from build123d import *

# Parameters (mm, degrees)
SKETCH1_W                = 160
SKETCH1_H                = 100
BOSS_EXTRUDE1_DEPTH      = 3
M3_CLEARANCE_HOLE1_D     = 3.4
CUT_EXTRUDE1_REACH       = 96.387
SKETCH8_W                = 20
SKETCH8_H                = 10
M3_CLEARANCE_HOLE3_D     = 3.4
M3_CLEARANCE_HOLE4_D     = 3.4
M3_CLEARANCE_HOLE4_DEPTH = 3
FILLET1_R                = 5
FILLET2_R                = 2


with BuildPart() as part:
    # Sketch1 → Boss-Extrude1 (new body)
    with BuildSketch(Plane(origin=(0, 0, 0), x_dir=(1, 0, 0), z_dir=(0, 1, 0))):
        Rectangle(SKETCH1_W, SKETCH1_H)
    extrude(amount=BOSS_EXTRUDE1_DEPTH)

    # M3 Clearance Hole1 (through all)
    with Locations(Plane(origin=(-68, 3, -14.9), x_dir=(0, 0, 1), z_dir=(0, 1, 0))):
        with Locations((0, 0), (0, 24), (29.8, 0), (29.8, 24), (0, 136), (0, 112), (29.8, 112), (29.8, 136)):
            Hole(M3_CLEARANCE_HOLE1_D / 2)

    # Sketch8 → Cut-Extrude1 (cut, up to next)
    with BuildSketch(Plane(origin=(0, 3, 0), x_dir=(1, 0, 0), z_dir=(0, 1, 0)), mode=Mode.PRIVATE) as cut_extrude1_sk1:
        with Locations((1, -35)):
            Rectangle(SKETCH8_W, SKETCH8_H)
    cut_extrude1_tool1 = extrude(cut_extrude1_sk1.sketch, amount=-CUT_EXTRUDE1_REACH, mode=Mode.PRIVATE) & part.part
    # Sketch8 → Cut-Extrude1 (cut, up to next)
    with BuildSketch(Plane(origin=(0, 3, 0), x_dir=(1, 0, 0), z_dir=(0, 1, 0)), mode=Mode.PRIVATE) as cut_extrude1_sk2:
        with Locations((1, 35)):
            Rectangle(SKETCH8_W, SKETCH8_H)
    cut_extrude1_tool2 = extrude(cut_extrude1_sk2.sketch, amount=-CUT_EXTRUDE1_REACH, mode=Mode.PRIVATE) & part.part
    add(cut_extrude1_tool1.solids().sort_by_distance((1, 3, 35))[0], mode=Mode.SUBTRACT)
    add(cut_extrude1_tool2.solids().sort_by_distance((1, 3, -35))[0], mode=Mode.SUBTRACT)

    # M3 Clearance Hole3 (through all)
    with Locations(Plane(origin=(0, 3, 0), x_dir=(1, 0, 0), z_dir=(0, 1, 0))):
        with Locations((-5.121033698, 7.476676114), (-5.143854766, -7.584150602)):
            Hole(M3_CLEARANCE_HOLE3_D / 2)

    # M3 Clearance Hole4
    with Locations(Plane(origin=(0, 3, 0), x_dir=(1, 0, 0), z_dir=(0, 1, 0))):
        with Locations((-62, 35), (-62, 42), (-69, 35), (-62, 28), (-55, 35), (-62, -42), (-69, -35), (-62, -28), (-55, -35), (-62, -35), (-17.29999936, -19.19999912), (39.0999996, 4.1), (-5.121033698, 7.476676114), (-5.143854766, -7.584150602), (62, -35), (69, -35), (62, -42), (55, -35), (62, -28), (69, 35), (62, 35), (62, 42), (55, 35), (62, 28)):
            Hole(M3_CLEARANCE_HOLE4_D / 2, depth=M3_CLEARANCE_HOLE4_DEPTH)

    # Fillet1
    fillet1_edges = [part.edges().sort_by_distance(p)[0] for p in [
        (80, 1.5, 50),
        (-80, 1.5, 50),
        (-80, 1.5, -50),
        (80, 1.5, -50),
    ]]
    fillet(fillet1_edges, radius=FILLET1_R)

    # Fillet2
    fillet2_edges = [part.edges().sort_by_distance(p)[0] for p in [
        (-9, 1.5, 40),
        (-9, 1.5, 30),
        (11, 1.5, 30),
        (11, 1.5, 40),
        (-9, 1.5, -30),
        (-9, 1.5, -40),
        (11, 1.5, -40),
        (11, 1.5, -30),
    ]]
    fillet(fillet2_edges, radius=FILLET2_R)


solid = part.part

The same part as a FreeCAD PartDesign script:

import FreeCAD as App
import Part
import Sketcher
Q = App.Units.Quantity


def edges_at(feature, points):
    """Names of the edges that pass closest to the given points."""
    edges = feature.Shape.Edges
    near = lambda p: min(range(len(edges)), key=lambda i: edges[i].distToShape(Part.Vertex(*p))[0])
    return sorted({f"Edge{near(p) + 1}" for p in points})

doc = App.newDocument("Part")
params = doc.addObject("Spreadsheet::Sheet", "Params")
for row, (alias, value) in enumerate([
    ("sketch1_width", "160 mm"),
    ("sketch1_height", "100 mm"),
    ("pad1_length", "3 mm"),
    ("sketch2_diameter", "3.4 mm"),
    ("hole_diameter", "3.4 mm"),
    ("sketch3_width", "20 mm"),
    ("sketch3_height", "10 mm"),
    ("sketch4_width", "20 mm"),
    ("sketch4_height", "10 mm"),
    ("sketch5_diameter", "3.4 mm"),
    ("hole2_diameter", "3.4 mm"),
    ("sketch6_diameter", "3.4 mm"),
    ("hole3_diameter", "3.4 mm"),
    ("hole3_depth", "3 mm"),
    ("fillet_radius", "5 mm"),
    ("fillet2_radius", "2 mm"),
], start=1):
    params.set(f"A{row}", alias)
    params.set(f"B{row}", "=" + value)
    params.setAlias(f"B{row}", alias)

body = doc.addObject("PartDesign::Body", "Body")

# Sketch on XZ plane
sketch1 = body.newObject("Sketcher::SketchObject", "Sketch")
sketch1.AttachmentSupport = (doc.getObject("XZ_Plane"), [""])
sketch1.MapMode = "FlatFace"
sketch1.addGeometry([
    Part.LineSegment(App.Vector(-80, -50, 0), App.Vector(-80, 50, 0)),
    Part.LineSegment(App.Vector(-80, 50, 0), App.Vector(80, 50, 0)),
    Part.LineSegment(App.Vector(80, 50, 0), App.Vector(80, -50, 0)),
    Part.LineSegment(App.Vector(80, -50, 0), App.Vector(-80, -50, 0)),
], False)
sketch1.addConstraint([
    Sketcher.Constraint("Coincident", 0, 2, 1, 1),
    Sketcher.Constraint("Coincident", 1, 2, 2, 1),
    Sketcher.Constraint("Coincident", 2, 2, 3, 1),
    Sketcher.Constraint("Coincident", 3, 2, 0, 1),
    Sketcher.Constraint("Vertical", 0),
    Sketcher.Constraint("Horizontal", 1),
    Sketcher.Constraint("Vertical", 2),
    Sketcher.Constraint("Horizontal", 3),
    Sketcher.Constraint("Symmetric", 0, 2, 2, 2, -1, 1),
    Sketcher.Constraint("DistanceX", 1, 1, 1, 2, Q("160 mm")),
    Sketcher.Constraint("DistanceY", 0, 1, 0, 2, Q("100 mm")),
])
sketch1.setExpression("Constraints[9]", "Params.sketch1_width")
sketch1.setExpression("Constraints[10]", "Params.sketch1_height")
pad1 = body.newObject("PartDesign::Pad", "Pad")
pad1.Profile = sketch1
pad1.setExpression("Length", "Params.pad1_length")
pad1.Reversed = True

# Sketch on XZ plane
sketch2 = body.newObject("Sketcher::SketchObject", "Sketch001")
sketch2.AttachmentSupport = (doc.getObject("XZ_Plane"), [""])
sketch2.MapMode = "FlatFace"
sketch2.AttachmentOffset = App.Placement(App.Vector(0, 0, -3), App.Rotation())
sketch2.addGeometry([
    Part.Circle(App.Vector(-68, -14.9, 0), App.Vector(0, 0, 1), 1.7),  # 0
    Part.Circle(App.Vector(-44, -14.9, 0), App.Vector(0, 0, 1), 1.7),  # 1
    Part.Circle(App.Vector(-68, 14.9, 0), App.Vector(0, 0, 1), 1.7),  # 2
    Part.Circle(App.Vector(-44, 14.9, 0), App.Vector(0, 0, 1), 1.7),  # 3
    Part.Circle(App.Vector(68, -14.9, 0), App.Vector(0, 0, 1), 1.7),  # 4
    Part.Circle(App.Vector(44, -14.9, 0), App.Vector(0, 0, 1), 1.7),  # 5
    Part.Circle(App.Vector(44, 14.9, 0), App.Vector(0, 0, 1), 1.7),  # 6
    Part.Circle(App.Vector(68, 14.9, 0), App.Vector(0, 0, 1), 1.7),  # 7
], False)
sketch2.addConstraint([
    Sketcher.Constraint("Equal", 0, 1),
    Sketcher.Constraint("Equal", 1, 2),
    Sketcher.Constraint("Equal", 2, 3),
    Sketcher.Constraint("Equal", 3, 4),
    Sketcher.Constraint("Equal", 4, 5),
    Sketcher.Constraint("Equal", 5, 6),
    Sketcher.Constraint("Equal", 6, 7),
    Sketcher.Constraint("Symmetric", 2, 3, 4, 3, -1, 1),
    Sketcher.Constraint("Symmetric", 3, 3, 5, 3, -1, 1),
    Sketcher.Constraint("Symmetric", 1, 3, 6, 3, -1, 1),
    Sketcher.Constraint("Symmetric", 0, 3, 7, 3, -1, 1),
    Sketcher.Constraint("Symmetric", 0, 3, 4, 3, -2),
    Sketcher.Constraint("Symmetric", 1, 3, 5, 3, -2),
    Sketcher.Constraint("Horizontal", 0, 3, 1, 3),
    Sketcher.Constraint("Diameter", 0, Q("3.4 mm")),
    Sketcher.Constraint("DistanceX", 0, 3, -1, 1, Q("68 mm")),
    Sketcher.Constraint("DistanceX", 1, 3, -1, 1, Q("44 mm")),
    Sketcher.Constraint("DistanceY", 0, 3, -1, 1, Q("14.9 mm")),
])
sketch2.setExpression("Constraints[14]", "Params.sketch2_diameter")
doc.recompute()
hole = body.newObject("PartDesign::Hole", "Hole")
hole.Profile = sketch2
hole.ThreadType = "None"
hole.setExpression("Diameter", "Params.hole_diameter")
hole.DepthType = "ThroughAll"
hole.Reversed = True

# Sketch on XZ plane
sketch3 = body.newObject("Sketcher::SketchObject", "Sketch002")
sketch3.AttachmentSupport = (doc.getObject("XZ_Plane"), [""])
sketch3.MapMode = "FlatFace"
sketch3.AttachmentOffset = App.Placement(App.Vector(0, 0, -3), App.Rotation())
sketch3.addGeometry([
    Part.LineSegment(App.Vector(-9, 30, 0), App.Vector(-9, 40, 0)),
    Part.LineSegment(App.Vector(-9, 40, 0), App.Vector(11, 40, 0)),
    Part.LineSegment(App.Vector(11, 40, 0), App.Vector(11, 30, 0)),
    Part.LineSegment(App.Vector(11, 30, 0), App.Vector(-9, 30, 0)),
], False)
sketch3.addConstraint([
    Sketcher.Constraint("Coincident", 0, 2, 1, 1),
    Sketcher.Constraint("Coincident", 1, 2, 2, 1),
    Sketcher.Constraint("Coincident", 2, 2, 3, 1),
    Sketcher.Constraint("Coincident", 3, 2, 0, 1),
    Sketcher.Constraint("Vertical", 0),
    Sketcher.Constraint("Horizontal", 1),
    Sketcher.Constraint("Vertical", 2),
    Sketcher.Constraint("Horizontal", 3),
    Sketcher.Constraint("DistanceX", 1, 1, 1, 2, Q("20 mm")),
    Sketcher.Constraint("DistanceY", 0, 1, 0, 2, Q("10 mm")),
    Sketcher.Constraint("DistanceX", 0, 2, -1, 1, Q("9 mm")),
    Sketcher.Constraint("DistanceY", -1, 1, 0, 2, Q("40 mm")),
])
sketch3.setExpression("Constraints[8]", "Params.sketch3_width")
sketch3.setExpression("Constraints[9]", "Params.sketch3_height")
pocket1 = body.newObject("PartDesign::Pocket", "Pocket")
pocket1.Profile = sketch3
pocket1.Type = "UpToFirst"
pocket1.Reversed = True

# Sketch on XZ plane
sketch4 = body.newObject("Sketcher::SketchObject", "Sketch003")
sketch4.AttachmentSupport = (doc.getObject("XZ_Plane"), [""])
sketch4.MapMode = "FlatFace"
sketch4.AttachmentOffset = App.Placement(App.Vector(0, 0, -3), App.Rotation())
sketch4.addGeometry([
    Part.LineSegment(App.Vector(-9, -40, 0), App.Vector(-9, -30, 0)),
    Part.LineSegment(App.Vector(-9, -30, 0), App.Vector(11, -30, 0)),
    Part.LineSegment(App.Vector(11, -30, 0), App.Vector(11, -40, 0)),
    Part.LineSegment(App.Vector(11, -40, 0), App.Vector(-9, -40, 0)),
], False)
sketch4.addConstraint([
    Sketcher.Constraint("Coincident", 0, 2, 1, 1),
    Sketcher.Constraint("Coincident", 1, 2, 2, 1),
    Sketcher.Constraint("Coincident", 2, 2, 3, 1),
    Sketcher.Constraint("Coincident", 3, 2, 0, 1),
    Sketcher.Constraint("Vertical", 0),
    Sketcher.Constraint("Horizontal", 1),
    Sketcher.Constraint("Vertical", 2),
    Sketcher.Constraint("Horizontal", 3),
    Sketcher.Constraint("DistanceX", 1, 1, 1, 2, Q("20 mm")),
    Sketcher.Constraint("DistanceY", 0, 1, 0, 2, Q("10 mm")),
    Sketcher.Constraint("DistanceX", 0, 2, -1, 1, Q("9 mm")),
    Sketcher.Constraint("DistanceY", 0, 2, -1, 1, Q("30 mm")),
])
sketch4.setExpression("Constraints[8]", "Params.sketch4_width")
sketch4.setExpression("Constraints[9]", "Params.sketch4_height")
pocket2 = body.newObject("PartDesign::Pocket", "Pocket001")
pocket2.Profile = sketch4
pocket2.Type = "UpToFirst"
pocket2.Reversed = True

# Sketch on XZ plane
sketch5 = body.newObject("Sketcher::SketchObject", "Sketch004")
sketch5.AttachmentSupport = (doc.getObject("XZ_Plane"), [""])
sketch5.MapMode = "FlatFace"
sketch5.AttachmentOffset = App.Placement(App.Vector(0, 0, -3), App.Rotation())
sketch5.addGeometry([
    Part.Circle(App.Vector(-5.1, -7.5, 0), App.Vector(0, 0, 1), 1.7),
    Part.Circle(App.Vector(-5.1, 7.6, 0), App.Vector(0, 0, 1), 1.7),
], False)
sketch5.addConstraint([
    Sketcher.Constraint("Equal", 0, 1),
    Sketcher.Constraint("Diameter", 0, Q("3.4 mm")),
    Sketcher.Constraint("DistanceY", -1, 1, 1, 3, Q("7.584151 mm")),
    Sketcher.Constraint("DistanceX", 1, 3, 0, 3, Q("0.022821 mm")),
    Sketcher.Constraint("DistanceX", 0, 3, -1, 1, Q("5.121034 mm")),
    Sketcher.Constraint("DistanceY", 0, 3, -1, 1, Q("7.476676 mm")),
])
sketch5.setExpression("Constraints[1]", "Params.sketch5_diameter")
doc.recompute()
hole2 = body.newObject("PartDesign::Hole", "Hole001")
hole2.Profile = sketch5
hole2.ThreadType = "None"
hole2.setExpression("Diameter", "Params.hole2_diameter")
hole2.DepthType = "ThroughAll"
hole2.Reversed = True

# Sketch on XZ plane
sketch6 = body.newObject("Sketcher::SketchObject", "Sketch005")
sketch6.AttachmentSupport = (doc.getObject("XZ_Plane"), [""])
sketch6.MapMode = "FlatFace"
sketch6.AttachmentOffset = App.Placement(App.Vector(0, 0, -3), App.Rotation())
sketch6.addGeometry([
    Part.Circle(App.Vector(-62, -35, 0), App.Vector(0, 0, 1), 1.7),  # 0
    Part.Circle(App.Vector(-62, -42, 0), App.Vector(0, 0, 1), 1.7),  # 1
    Part.Circle(App.Vector(-69, -35, 0), App.Vector(0, 0, 1), 1.7),  # 2
    Part.Circle(App.Vector(-62, -28, 0), App.Vector(0, 0, 1), 1.7),  # 3
    Part.Circle(App.Vector(-55, -35, 0), App.Vector(0, 0, 1), 1.7),  # 4
    Part.Circle(App.Vector(-62, 42, 0), App.Vector(0, 0, 1), 1.7),  # 5
    Part.Circle(App.Vector(-69, 35, 0), App.Vector(0, 0, 1), 1.7),  # 6
    Part.Circle(App.Vector(-62, 28, 0), App.Vector(0, 0, 1), 1.7),  # 7
    Part.Circle(App.Vector(-55, 35, 0), App.Vector(0, 0, 1), 1.7),  # 8
    Part.Circle(App.Vector(-62, 35, 0), App.Vector(0, 0, 1), 1.7),  # 9
    Part.Circle(App.Vector(-17.3, 19.2, 0), App.Vector(0, 0, 1), 1.7),  # 10
    Part.Circle(App.Vector(39.1, -4.1, 0), App.Vector(0, 0, 1), 1.7),  # 11
    Part.Circle(App.Vector(-5.1, -7.5, 0), App.Vector(0, 0, 1), 1.7),  # 12
    Part.Circle(App.Vector(-5.1, 7.6, 0), App.Vector(0, 0, 1), 1.7),  # 13
    Part.Circle(App.Vector(62, 35, 0), App.Vector(0, 0, 1), 1.7),  # 14
    Part.Circle(App.Vector(69, 35, 0), App.Vector(0, 0, 1), 1.7),  # 15
    Part.Circle(App.Vector(62, 42, 0), App.Vector(0, 0, 1), 1.7),  # 16
    Part.Circle(App.Vector(55, 35, 0), App.Vector(0, 0, 1), 1.7),  # 17
    Part.Circle(App.Vector(62, 28, 0), App.Vector(0, 0, 1), 1.7),  # 18
    Part.Circle(App.Vector(69, -35, 0), App.Vector(0, 0, 1), 1.7),  # 19
    Part.Circle(App.Vector(62, -35, 0), App.Vector(0, 0, 1), 1.7),  # 20
    Part.Circle(App.Vector(62, -42, 0), App.Vector(0, 0, 1), 1.7),  # 21
    Part.Circle(App.Vector(55, -35, 0), App.Vector(0, 0, 1), 1.7),  # 22
    Part.Circle(App.Vector(62, -28, 0), App.Vector(0, 0, 1), 1.7),  # 23
], False)
sketch6.addConstraint([
    Sketcher.Constraint("Equal", 0, 1),
    Sketcher.Constraint("Equal", 1, 2),
    Sketcher.Constraint("Equal", 2, 3),
    Sketcher.Constraint("Equal", 3, 4),
    Sketcher.Constraint("Equal", 4, 5),
    Sketcher.Constraint("Equal", 5, 6),
    Sketcher.Constraint("Equal", 6, 7),
    Sketcher.Constraint("Equal", 7, 8),
    Sketcher.Constraint("Equal", 8, 9),
    Sketcher.Constraint("Equal", 9, 10),
    Sketcher.Constraint("Equal", 10, 11),
    Sketcher.Constraint("Equal", 11, 12),
    Sketcher.Constraint("Equal", 12, 13),
    Sketcher.Constraint("Equal", 13, 14),
    Sketcher.Constraint("Equal", 14, 15),
    Sketcher.Constraint("Equal", 15, 16),
    Sketcher.Constraint("Equal", 16, 17),
    Sketcher.Constraint("Equal", 17, 18),
    Sketcher.Constraint("Equal", 18, 19),
    Sketcher.Constraint("Equal", 19, 20),
    Sketcher.Constraint("Equal", 20, 21),
    Sketcher.Constraint("Equal", 21, 22),
    Sketcher.Constraint("Equal", 22, 23),
    Sketcher.Constraint("Symmetric", 0, 3, 14, 3, -1, 1),
    Sketcher.Constraint("Symmetric", 2, 3, 15, 3, -1, 1),
    Sketcher.Constraint("Symmetric", 1, 3, 16, 3, -1, 1),
    Sketcher.Constraint("Symmetric", 4, 3, 17, 3, -1, 1),
    Sketcher.Constraint("Symmetric", 3, 3, 18, 3, -1, 1),
    Sketcher.Constraint("Symmetric", 6, 3, 19, 3, -1, 1),
    Sketcher.Constraint("Symmetric", 9, 3, 20, 3, -1, 1),
    Sketcher.Constraint("Symmetric", 5, 3, 21, 3, -1, 1),
    Sketcher.Constraint("Symmetric", 8, 3, 22, 3, -1, 1),
    Sketcher.Constraint("Symmetric", 7, 3, 23, 3, -1, 1),
    Sketcher.Constraint("Symmetric", 9, 3, 14, 3, -2),
    Sketcher.Constraint("Symmetric", 6, 3, 15, 3, -2),
    Sketcher.Constraint("Symmetric", 5, 3, 16, 3, -2),
    Sketcher.Constraint("Symmetric", 8, 3, 17, 3, -2),
    Sketcher.Constraint("Symmetric", 7, 3, 18, 3, -2),
    Sketcher.Constraint("Horizontal", 0, 3, 2, 3),
    Sketcher.Constraint("Horizontal", 2, 3, 4, 3),
    Sketcher.Constraint("Vertical", 0, 3, 1, 3),
    Sketcher.Constraint("Vertical", 1, 3, 3, 3),
    Sketcher.Constraint("Diameter", 0, Q("3.4 mm")),
    Sketcher.Constraint("DistanceX", 0, 3, -1, 1, Q("62 mm")),
    Sketcher.Constraint("DistanceY", 0, 3, -1, 1, Q("35 mm")),
    Sketcher.Constraint("DistanceY", 1, 3, -1, 1, Q("42 mm")),
    Sketcher.Constraint("DistanceX", 2, 3, -1, 1, Q("69 mm")),
    Sketcher.Constraint("DistanceY", 3, 3, -1, 1, Q("28 mm")),
    Sketcher.Constraint("DistanceX", 4, 3, -1, 1, Q("55 mm")),
    Sketcher.Constraint("DistanceX", 10, 3, -1, 1, Q("17.299999 mm")),
    Sketcher.Constraint("DistanceY", -1, 1, 10, 3, Q("19.199999 mm")),
    Sketcher.Constraint("DistanceX", -1, 1, 11, 3, Q("39.1 mm")),
    Sketcher.Constraint("DistanceY", 11, 3, -1, 1, Q("4.1 mm")),
    Sketcher.Constraint("DistanceY", -1, 1, 13, 3, Q("7.584151 mm")),
    Sketcher.Constraint("DistanceX", 13, 3, 12, 3, Q("0.022821 mm")),
    Sketcher.Constraint("DistanceX", 12, 3, -1, 1, Q("5.121034 mm")),
    Sketcher.Constraint("DistanceY", 12, 3, -1, 1, Q("7.476676 mm")),
])
sketch6.setExpression("Constraints[42]", "Params.sketch6_diameter")
doc.recompute()
hole3 = body.newObject("PartDesign::Hole", "Hole002")
hole3.Profile = sketch6
hole3.ThreadType = "None"
hole3.setExpression("Diameter", "Params.hole3_diameter")
hole3.DepthType = "Dimension"
hole3.setExpression("Depth", "Params.hole3_depth")
hole3.DrillPoint = "Flat"
hole3.Reversed = True
doc.recompute()

fillet = body.newObject("PartDesign::Fillet", "Fillet")
fillet.Base = (hole3, edges_at(hole3, [
    (80, 1.5, 50),
    (-80, 1.5, 50),
    (-80, 1.5, -50),
    (80, 1.5, -50),
]))
fillet.setExpression("Radius", "Params.fillet_radius")
doc.recompute()

fillet2 = body.newObject("PartDesign::Fillet", "Fillet001")
fillet2.Base = (fillet, edges_at(fillet, [
    (-9, 1.5, 40),
    (-9, 1.5, 30),
    (11, 1.5, 30),
    (11, 1.5, 40),
    (-9, 1.5, -30),
    (-9, 1.5, -40),
    (11, 1.5, -40),
    (11, 1.5, -30),
]))
fillet2.setExpression("Radius", "Params.fillet2_radius")

doc.recompute()
